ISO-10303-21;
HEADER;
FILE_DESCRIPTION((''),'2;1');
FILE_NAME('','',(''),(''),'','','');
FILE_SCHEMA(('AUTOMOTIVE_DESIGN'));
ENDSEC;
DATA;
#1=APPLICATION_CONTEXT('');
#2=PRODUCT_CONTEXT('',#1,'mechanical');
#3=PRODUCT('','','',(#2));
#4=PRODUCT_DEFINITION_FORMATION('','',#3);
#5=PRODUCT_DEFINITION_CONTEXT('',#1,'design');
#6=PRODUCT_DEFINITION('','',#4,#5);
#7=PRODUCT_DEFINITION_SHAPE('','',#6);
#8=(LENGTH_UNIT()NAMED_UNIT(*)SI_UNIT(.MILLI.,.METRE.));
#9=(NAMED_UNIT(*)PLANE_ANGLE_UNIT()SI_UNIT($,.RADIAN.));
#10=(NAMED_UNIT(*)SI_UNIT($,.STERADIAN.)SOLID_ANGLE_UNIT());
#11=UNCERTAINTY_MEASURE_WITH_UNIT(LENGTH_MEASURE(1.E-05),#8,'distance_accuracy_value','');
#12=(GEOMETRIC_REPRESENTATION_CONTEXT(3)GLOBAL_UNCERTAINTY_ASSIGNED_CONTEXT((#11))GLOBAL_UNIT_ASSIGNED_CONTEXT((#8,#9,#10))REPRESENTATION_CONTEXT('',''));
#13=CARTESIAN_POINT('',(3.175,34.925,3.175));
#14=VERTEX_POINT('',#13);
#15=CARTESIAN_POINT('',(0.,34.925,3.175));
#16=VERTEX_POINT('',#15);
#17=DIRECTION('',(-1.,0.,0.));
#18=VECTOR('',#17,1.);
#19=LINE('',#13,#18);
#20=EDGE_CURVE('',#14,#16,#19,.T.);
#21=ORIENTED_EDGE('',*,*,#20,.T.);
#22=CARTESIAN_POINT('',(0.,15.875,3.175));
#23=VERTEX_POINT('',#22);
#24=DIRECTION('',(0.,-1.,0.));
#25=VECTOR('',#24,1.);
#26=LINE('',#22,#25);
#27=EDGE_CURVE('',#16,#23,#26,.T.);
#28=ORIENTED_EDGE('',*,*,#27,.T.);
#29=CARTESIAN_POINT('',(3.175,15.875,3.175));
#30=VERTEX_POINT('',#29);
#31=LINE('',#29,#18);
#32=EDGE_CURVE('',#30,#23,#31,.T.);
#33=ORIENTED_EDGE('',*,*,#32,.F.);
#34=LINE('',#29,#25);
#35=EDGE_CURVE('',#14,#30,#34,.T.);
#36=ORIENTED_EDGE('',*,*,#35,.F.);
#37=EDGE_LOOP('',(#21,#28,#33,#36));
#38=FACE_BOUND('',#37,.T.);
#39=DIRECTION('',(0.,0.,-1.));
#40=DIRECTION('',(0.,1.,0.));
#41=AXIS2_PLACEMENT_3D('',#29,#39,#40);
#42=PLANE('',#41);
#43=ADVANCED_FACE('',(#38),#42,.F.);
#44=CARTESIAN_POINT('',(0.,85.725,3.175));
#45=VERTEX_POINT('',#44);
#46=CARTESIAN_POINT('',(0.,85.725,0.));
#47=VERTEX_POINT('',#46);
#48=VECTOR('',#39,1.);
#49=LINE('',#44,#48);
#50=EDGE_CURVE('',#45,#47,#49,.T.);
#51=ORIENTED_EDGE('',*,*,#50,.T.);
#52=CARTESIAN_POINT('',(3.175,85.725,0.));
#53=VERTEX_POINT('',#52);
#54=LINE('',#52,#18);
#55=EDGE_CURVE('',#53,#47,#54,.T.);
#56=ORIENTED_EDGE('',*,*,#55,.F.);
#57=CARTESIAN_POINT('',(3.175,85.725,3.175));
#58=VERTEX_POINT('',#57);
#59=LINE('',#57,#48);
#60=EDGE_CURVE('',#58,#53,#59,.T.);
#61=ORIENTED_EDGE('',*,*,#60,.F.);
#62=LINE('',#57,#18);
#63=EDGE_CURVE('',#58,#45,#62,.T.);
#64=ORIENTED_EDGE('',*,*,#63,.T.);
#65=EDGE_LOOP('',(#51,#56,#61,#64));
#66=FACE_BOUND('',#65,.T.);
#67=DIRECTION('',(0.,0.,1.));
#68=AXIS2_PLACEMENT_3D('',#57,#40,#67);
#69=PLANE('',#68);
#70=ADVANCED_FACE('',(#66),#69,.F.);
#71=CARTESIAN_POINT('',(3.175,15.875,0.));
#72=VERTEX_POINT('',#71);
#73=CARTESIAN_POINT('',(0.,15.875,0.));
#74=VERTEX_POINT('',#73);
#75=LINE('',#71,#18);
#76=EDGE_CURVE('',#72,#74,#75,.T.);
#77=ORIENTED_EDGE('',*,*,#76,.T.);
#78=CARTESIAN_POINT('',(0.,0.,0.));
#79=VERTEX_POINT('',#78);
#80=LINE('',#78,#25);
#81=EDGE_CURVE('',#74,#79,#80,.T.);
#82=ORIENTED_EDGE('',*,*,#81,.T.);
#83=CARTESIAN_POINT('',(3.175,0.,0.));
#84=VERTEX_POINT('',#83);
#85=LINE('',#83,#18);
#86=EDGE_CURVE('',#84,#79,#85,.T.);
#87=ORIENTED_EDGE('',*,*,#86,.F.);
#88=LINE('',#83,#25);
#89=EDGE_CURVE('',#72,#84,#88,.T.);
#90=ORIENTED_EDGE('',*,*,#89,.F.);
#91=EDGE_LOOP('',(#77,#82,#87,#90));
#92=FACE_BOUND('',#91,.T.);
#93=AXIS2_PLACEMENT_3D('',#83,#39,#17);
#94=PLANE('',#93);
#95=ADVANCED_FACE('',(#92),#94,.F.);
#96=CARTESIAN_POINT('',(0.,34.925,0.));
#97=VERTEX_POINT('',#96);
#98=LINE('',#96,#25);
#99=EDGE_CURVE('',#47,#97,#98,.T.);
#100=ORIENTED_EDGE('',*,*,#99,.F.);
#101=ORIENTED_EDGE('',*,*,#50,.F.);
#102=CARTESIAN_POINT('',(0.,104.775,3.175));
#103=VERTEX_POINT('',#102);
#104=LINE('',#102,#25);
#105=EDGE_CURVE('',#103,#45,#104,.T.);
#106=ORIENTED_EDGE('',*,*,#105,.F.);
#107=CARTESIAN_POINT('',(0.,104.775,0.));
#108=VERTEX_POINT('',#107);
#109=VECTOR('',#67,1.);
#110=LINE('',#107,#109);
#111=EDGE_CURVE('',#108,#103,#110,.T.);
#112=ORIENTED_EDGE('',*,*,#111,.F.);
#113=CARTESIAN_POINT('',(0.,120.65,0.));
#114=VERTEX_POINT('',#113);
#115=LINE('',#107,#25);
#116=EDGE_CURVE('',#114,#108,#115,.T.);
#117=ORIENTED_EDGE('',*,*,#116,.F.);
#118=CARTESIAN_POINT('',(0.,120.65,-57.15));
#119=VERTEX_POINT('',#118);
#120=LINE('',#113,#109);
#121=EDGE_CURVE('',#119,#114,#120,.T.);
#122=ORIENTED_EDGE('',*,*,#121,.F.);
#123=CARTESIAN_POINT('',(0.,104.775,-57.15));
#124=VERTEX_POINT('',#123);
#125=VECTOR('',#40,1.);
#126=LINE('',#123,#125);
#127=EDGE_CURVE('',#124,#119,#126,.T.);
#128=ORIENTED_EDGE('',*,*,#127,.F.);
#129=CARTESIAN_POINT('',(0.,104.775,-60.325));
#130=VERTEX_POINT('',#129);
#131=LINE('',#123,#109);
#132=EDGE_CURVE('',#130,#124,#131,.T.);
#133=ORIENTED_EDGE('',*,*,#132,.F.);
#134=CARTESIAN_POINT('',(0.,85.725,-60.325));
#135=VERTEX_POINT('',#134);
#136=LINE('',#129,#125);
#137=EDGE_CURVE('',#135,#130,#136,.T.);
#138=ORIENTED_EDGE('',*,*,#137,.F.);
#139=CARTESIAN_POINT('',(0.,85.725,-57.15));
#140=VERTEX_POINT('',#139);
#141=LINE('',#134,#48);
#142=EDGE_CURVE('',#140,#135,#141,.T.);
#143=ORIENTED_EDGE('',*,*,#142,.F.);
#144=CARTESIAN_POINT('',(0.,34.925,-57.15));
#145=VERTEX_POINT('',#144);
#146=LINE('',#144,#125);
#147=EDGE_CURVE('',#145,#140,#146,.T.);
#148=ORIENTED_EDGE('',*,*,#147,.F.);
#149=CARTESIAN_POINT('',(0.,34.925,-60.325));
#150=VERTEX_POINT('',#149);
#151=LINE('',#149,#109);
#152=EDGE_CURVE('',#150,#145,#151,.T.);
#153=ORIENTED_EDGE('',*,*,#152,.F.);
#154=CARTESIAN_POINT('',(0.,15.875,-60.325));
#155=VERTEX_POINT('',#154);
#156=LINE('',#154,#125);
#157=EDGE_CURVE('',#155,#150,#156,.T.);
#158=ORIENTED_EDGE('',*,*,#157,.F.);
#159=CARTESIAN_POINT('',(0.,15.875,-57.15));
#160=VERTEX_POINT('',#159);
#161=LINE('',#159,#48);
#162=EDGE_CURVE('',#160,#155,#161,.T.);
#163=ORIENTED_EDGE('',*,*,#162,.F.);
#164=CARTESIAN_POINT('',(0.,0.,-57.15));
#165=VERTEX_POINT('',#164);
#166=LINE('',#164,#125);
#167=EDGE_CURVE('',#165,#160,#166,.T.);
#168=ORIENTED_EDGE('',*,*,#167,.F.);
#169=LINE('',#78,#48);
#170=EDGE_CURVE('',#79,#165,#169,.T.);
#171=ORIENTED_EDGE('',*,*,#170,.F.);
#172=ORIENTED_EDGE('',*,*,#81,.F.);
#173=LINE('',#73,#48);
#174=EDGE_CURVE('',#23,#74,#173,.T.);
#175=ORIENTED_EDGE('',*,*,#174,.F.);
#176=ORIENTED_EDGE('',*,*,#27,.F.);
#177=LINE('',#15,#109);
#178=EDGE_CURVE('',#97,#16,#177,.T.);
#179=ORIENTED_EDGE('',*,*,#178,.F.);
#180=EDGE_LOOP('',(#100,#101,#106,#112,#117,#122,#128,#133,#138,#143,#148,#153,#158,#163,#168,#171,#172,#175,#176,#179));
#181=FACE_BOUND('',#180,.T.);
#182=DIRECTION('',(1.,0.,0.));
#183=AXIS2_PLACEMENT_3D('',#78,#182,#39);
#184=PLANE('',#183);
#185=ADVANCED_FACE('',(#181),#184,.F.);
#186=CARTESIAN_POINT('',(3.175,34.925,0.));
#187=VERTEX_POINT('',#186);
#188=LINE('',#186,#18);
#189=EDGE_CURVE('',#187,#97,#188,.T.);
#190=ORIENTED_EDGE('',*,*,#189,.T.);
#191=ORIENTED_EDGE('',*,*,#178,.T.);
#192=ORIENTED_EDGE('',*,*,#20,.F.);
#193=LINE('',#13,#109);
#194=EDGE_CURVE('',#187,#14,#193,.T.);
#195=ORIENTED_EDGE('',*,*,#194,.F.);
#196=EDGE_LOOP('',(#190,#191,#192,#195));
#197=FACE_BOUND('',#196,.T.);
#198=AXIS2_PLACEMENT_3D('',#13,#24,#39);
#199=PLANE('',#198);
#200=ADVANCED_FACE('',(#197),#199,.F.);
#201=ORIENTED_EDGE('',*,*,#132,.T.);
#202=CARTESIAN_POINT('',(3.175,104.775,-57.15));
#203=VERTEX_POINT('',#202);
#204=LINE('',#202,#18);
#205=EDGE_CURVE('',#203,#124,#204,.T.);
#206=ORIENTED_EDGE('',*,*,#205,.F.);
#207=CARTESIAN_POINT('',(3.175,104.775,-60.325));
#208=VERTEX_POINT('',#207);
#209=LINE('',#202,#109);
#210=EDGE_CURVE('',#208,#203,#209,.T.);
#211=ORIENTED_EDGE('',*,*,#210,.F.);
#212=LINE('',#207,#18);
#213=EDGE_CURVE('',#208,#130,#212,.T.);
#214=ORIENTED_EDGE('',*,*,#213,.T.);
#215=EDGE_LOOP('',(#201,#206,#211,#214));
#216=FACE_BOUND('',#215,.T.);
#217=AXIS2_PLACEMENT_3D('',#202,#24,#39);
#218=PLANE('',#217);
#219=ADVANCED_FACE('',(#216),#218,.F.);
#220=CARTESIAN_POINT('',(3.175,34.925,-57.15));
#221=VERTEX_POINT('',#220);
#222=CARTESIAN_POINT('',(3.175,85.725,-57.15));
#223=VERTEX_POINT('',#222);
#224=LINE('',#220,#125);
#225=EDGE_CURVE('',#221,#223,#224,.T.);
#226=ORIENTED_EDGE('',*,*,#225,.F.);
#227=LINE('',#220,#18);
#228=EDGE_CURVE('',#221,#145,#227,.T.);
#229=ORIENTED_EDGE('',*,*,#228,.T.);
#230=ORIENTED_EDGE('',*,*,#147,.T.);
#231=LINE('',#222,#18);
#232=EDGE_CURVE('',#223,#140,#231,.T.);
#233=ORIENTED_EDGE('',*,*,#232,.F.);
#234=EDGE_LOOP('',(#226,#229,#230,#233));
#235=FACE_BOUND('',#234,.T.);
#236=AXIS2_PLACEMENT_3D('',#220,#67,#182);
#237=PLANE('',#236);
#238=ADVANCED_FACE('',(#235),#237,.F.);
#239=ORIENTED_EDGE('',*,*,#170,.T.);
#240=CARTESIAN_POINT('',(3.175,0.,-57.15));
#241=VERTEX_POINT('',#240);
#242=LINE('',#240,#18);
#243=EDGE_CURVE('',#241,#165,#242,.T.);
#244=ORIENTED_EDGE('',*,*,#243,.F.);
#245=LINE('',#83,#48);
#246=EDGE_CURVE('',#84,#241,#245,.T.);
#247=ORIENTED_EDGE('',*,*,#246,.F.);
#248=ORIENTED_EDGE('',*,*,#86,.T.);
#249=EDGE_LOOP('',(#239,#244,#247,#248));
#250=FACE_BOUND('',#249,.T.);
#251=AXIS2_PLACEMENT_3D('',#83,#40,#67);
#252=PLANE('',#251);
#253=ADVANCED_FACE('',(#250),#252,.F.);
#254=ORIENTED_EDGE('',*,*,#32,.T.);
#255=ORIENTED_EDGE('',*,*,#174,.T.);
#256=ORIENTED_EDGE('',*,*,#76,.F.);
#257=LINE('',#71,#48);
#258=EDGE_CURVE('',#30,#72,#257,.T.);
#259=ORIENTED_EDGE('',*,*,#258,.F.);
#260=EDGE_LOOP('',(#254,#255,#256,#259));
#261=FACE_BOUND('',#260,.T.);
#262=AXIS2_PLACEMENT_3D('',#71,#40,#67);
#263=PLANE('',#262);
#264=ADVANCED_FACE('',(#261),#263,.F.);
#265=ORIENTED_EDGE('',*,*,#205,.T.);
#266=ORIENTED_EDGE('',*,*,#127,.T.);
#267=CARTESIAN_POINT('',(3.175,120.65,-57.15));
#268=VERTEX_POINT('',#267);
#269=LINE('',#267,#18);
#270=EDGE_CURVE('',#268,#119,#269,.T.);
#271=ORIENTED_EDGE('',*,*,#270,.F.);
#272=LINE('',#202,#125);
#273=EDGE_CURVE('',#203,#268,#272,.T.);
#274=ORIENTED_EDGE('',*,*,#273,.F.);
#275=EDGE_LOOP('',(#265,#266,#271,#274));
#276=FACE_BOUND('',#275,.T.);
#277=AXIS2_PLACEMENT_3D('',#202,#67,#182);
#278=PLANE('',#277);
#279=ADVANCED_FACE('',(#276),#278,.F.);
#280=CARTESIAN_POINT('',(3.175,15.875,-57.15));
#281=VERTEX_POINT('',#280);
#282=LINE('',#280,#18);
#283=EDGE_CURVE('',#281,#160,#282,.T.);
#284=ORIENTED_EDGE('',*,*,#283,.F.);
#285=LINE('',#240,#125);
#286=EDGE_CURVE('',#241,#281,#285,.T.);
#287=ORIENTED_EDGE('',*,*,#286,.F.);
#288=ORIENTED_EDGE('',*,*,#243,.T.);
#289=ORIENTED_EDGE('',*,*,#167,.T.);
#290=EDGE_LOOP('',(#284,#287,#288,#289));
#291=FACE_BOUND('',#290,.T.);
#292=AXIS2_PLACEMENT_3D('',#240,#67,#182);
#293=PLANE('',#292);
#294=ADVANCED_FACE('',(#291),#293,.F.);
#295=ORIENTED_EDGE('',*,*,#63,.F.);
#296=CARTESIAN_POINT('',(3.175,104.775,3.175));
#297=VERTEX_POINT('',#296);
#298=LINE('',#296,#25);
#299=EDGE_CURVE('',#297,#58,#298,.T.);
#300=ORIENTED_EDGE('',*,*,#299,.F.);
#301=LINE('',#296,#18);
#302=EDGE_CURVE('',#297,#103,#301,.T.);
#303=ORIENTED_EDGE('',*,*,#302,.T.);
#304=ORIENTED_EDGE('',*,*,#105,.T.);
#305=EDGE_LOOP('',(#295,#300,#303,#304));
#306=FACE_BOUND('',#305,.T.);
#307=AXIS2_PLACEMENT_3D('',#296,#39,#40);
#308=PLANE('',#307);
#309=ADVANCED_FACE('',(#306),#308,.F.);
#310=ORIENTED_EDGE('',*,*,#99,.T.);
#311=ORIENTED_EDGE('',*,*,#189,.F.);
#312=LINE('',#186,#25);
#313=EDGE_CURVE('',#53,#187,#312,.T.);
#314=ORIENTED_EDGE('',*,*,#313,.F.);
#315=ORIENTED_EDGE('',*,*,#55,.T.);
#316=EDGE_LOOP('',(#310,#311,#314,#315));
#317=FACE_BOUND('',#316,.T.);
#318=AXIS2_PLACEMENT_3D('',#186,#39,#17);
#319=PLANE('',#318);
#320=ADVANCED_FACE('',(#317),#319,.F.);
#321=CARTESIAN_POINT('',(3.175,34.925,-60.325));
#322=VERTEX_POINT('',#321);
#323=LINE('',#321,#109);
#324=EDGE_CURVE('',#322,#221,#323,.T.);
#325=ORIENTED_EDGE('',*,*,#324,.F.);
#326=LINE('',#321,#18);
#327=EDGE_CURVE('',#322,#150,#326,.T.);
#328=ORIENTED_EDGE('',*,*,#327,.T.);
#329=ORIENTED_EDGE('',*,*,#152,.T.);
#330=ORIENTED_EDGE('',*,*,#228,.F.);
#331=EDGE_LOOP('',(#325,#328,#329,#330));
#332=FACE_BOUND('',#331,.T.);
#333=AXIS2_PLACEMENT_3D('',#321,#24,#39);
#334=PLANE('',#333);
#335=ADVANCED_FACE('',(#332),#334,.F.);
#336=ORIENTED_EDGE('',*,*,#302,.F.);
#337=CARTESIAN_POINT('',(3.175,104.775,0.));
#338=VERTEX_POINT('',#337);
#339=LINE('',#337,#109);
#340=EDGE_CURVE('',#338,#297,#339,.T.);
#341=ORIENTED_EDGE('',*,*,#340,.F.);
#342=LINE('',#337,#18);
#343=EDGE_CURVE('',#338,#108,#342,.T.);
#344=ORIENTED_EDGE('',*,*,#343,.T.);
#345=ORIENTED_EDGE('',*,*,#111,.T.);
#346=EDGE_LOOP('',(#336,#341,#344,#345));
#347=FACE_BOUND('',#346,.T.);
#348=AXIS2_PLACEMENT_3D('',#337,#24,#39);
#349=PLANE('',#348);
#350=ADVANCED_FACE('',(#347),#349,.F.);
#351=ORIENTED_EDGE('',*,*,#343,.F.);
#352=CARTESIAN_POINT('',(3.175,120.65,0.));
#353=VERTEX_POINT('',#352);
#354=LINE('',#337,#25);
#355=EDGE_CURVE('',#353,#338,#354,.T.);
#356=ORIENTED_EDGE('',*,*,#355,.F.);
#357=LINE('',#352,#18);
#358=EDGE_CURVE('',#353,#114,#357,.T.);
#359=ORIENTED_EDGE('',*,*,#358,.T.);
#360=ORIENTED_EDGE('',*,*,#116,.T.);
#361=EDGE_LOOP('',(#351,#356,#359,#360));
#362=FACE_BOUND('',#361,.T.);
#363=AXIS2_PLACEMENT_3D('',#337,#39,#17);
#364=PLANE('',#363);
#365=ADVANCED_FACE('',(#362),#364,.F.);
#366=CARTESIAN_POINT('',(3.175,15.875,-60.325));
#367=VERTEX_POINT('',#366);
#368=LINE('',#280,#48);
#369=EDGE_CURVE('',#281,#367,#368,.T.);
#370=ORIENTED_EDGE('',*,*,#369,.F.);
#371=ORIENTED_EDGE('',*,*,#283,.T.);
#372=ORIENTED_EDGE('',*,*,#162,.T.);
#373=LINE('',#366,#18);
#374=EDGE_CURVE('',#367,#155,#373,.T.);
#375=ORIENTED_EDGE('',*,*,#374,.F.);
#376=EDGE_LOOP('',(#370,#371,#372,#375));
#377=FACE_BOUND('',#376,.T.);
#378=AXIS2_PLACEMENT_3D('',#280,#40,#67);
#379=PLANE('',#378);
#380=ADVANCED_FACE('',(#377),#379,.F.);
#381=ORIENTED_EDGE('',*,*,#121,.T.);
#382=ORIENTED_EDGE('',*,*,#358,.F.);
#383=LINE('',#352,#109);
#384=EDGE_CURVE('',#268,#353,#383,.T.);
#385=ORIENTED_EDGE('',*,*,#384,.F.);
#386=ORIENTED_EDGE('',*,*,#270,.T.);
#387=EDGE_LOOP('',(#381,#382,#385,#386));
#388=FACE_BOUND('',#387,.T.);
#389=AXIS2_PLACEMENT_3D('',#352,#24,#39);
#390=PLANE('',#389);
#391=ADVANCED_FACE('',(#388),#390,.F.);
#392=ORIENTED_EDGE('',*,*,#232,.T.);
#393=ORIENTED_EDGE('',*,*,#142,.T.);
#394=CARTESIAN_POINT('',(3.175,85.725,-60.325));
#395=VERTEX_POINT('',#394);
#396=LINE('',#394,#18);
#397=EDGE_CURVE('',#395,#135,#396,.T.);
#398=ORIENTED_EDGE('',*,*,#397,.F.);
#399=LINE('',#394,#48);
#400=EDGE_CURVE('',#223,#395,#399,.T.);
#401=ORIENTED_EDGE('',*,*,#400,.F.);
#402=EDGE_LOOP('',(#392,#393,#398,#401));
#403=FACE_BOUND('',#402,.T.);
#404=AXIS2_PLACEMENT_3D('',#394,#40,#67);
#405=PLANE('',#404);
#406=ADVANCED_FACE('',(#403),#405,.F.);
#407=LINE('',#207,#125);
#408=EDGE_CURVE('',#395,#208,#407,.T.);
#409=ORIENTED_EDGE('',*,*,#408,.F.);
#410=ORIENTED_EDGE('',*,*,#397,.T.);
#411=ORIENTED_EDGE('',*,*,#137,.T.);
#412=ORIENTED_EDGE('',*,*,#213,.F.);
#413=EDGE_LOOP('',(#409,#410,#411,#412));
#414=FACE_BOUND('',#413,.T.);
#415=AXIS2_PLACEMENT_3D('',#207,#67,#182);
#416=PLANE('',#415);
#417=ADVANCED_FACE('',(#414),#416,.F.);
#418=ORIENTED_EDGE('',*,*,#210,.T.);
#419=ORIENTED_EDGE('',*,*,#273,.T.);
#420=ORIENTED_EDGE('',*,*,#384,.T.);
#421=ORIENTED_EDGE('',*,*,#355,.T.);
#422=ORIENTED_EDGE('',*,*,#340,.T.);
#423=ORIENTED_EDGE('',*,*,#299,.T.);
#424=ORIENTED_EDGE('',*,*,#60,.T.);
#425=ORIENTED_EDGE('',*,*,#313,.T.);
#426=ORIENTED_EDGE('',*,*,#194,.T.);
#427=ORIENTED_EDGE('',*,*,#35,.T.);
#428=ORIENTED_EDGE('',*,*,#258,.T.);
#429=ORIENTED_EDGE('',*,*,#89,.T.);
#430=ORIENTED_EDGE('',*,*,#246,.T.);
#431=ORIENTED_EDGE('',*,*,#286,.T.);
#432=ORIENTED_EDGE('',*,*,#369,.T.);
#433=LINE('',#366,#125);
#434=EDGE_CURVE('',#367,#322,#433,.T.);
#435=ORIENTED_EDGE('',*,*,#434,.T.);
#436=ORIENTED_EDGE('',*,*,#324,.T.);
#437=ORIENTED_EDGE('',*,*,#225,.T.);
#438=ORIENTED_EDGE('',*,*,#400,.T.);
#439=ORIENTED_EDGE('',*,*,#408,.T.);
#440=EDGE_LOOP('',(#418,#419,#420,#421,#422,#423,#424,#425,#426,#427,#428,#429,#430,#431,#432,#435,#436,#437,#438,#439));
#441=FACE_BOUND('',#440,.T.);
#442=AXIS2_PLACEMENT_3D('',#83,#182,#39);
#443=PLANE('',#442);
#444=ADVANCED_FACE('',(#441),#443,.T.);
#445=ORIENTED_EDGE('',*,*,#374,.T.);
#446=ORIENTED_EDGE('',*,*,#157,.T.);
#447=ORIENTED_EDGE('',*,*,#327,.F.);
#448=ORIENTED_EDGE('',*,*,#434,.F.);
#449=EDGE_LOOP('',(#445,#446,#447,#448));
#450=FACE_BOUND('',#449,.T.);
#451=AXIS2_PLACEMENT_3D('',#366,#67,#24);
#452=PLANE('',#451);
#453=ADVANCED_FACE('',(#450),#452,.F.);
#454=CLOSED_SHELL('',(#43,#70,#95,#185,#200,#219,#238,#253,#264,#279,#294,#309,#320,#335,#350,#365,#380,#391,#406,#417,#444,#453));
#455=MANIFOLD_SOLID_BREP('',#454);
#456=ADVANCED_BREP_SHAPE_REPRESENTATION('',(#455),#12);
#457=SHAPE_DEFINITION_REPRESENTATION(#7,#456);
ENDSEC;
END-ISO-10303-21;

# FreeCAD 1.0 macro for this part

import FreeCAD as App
import Part
import Sketcher

V = App.Vector
Q = App.Units.Quantity

doc = App.newDocument("Part")
body = doc.addObject("PartDesign::Body", "Body")

sketch1 = body.newObject("Sketcher::SketchObject", "Sketch")
sketch1.AttachmentSupport = (doc.getObject("YZ_Plane"), [""])
sketch1.MapMode = "FlatFace"
sketch1.addGeometry([
    Part.LineSegment(V(0, 0, 0), V(0, -57.1, 0)),
    Part.LineSegment(V(0, -57.1, 0), V(15.9, -57.1, 0)),
    Part.LineSegment(V(15.9, -57.1, 0), V(15.9, -60.3, 0)),
    Part.LineSegment(V(15.9, -60.3, 0), V(34.9, -60.3, 0)),
    Part.LineSegment(V(34.9, -60.3, 0), V(34.9, -57.1, 0)),
    Part.LineSegment(V(34.9, -57.1, 0), V(85.7, -57.1, 0)),
    Part.LineSegment(V(85.7, -57.1, 0), V(85.7, -60.3, 0)),
    Part.LineSegment(V(85.7, -60.3, 0), V(104.8, -60.3, 0)),
    Part.LineSegment(V(104.8, -60.3, 0), V(104.8, -57.1, 0)),
    Part.LineSegment(V(104.8, -57.1, 0), V(120.7, -57.1, 0)),
    Part.LineSegment(V(120.7, -57.1, 0), V(120.7, 0, 0)),
    Part.LineSegment(V(120.7, 0, 0), V(104.8, 0, 0)),
    Part.LineSegment(V(104.8, 0, 0), V(104.8, 3.2, 0)),
    Part.LineSegment(V(104.8, 3.2, 0), V(85.7, 3.2, 0)),
    Part.LineSegment(V(85.7, 3.2, 0), V(85.7, 0, 0)),
    Part.LineSegment(V(85.7, 0, 0), V(34.9, 0, 0)),
    Part.LineSegment(V(34.9, 0, 0), V(34.9, 3.2, 0)),
    Part.LineSegment(V(34.9, 3.2, 0), V(15.9, 3.2, 0)),
    Part.LineSegment(V(15.9, 3.2, 0), V(15.9, 0, 0)),
    Part.LineSegment(V(15.9, 0, 0), V(0, 0, 0)),
], False)
sketch1.addConstraint([
    Sketcher.Constraint("Coincident", 0, 2, 1, 1),
    Sketcher.Constraint("Coincident", 1, 2, 2, 1),
    Sketcher.Constraint("Coincident", 2, 2, 3, 1),
    Sketcher.Constraint("Coincident", 3, 2, 4, 1),
    Sketcher.Constraint("Coincident", 4, 2, 5, 1),
    Sketcher.Constraint("Coincident", 5, 2, 6, 1),
    Sketcher.Constraint("Coincident", 6, 2, 7, 1),
    Sketcher.Constraint("Coincident", 7, 2, 8, 1),
    Sketcher.Constraint("Coincident", 8, 2, 9, 1),
    Sketcher.Constraint("Coincident", 9, 2, 10, 1),
    Sketcher.Constraint("Coincident", 10, 2, 11, 1),
    Sketcher.Constraint("Coincident", 11, 2, 12, 1),
    Sketcher.Constraint("Coincident", 12, 2, 13, 1),
    Sketcher.Constraint("Coincident", 13, 2, 14, 1),
    Sketcher.Constraint("Coincident", 14, 2, 15, 1),
    Sketcher.Constraint("Coincident", 15, 2, 16, 1),
    Sketcher.Constraint("Coincident", 16, 2, 17, 1),
    Sketcher.Constraint("Coincident", 17, 2, 18, 1),
    Sketcher.Constraint("Coincident", 18, 2, 19, 1),
    Sketcher.Constraint("Coincident", 19, 2, 0, 1),
    Sketcher.Constraint("Vertical", 0),
    Sketcher.Constraint("Horizontal", 1),
    Sketcher.Constraint("Vertical", 2),
    Sketcher.Constraint("Horizontal", 3),
    Sketcher.Constraint("Vertical", 4),
    Sketcher.Constraint("Horizontal", 5),
    Sketcher.Constraint("Vertical", 6),
    Sketcher.Constraint("Horizontal", 7),
    Sketcher.Constraint("Vertical", 8),
    Sketcher.Constraint("Horizontal", 9),
    Sketcher.Constraint("Vertical", 10),
    Sketcher.Constraint("Horizontal", 11),
    Sketcher.Constraint("Vertical", 12),
    Sketcher.Constraint("Horizontal", 13),
    Sketcher.Constraint("Vertical", 14),
    Sketcher.Constraint("Horizontal", 15),
    Sketcher.Constraint("Vertical", 16),
    Sketcher.Constraint("Horizontal", 17),
    Sketcher.Constraint("Vertical", 18),
    Sketcher.Constraint("Horizontal", 19),
    Sketcher.Constraint("Coincident", 19, 2, -1, 1),
    Sketcher.Constraint("PointOnObject", 10, 2, -1),
    Sketcher.Constraint("PointOnObject", 14, 2, -1),
    Sketcher.Constraint("Horizontal", 1, 2, 4, 2),
    Sketcher.Constraint("Horizontal", 3, 2, 6, 2),
    Sketcher.Constraint("Horizontal", 5, 2, 8, 2),
    Sketcher.Constraint("Horizontal", 13, 2, 16, 2),
    Sketcher.Constraint("Vertical", 8, 2, 11, 2),
    Sketcher.Constraint("Vertical", 6, 2, 13, 2),
    Sketcher.Constraint("Vertical", 4, 2, 15, 2),
    Sketcher.Constraint("Vertical", 2, 2, 17, 2),
    Sketcher.Constraint("Equal", 3, 7),
    Sketcher.Constraint("Equal", 1, 9),
    Sketcher.Constraint("Equal", 8, 12),
    Sketcher.Constraint("DistanceX", 5, 1, 5, 2, Q("2 in")),
    Sketcher.Constraint("DistanceX", 3, 1, 3, 2, Q("0.75 in")),
    Sketcher.Constraint("DistanceY", 0, 2, 0, 1, Q("2.25 in")),
    Sketcher.Constraint("DistanceX", 1, 1, 1, 2, Q("0.625 in")),
    Sketcher.Constraint("DistanceY", 2, 2, 2, 1, Q("0.125 in")),
])
pad1 = body.newObject("PartDesign::Pad", "Pad")
pad1.Profile = sketch1
pad1.Length = Q("0.125 in")

doc.recompute()
